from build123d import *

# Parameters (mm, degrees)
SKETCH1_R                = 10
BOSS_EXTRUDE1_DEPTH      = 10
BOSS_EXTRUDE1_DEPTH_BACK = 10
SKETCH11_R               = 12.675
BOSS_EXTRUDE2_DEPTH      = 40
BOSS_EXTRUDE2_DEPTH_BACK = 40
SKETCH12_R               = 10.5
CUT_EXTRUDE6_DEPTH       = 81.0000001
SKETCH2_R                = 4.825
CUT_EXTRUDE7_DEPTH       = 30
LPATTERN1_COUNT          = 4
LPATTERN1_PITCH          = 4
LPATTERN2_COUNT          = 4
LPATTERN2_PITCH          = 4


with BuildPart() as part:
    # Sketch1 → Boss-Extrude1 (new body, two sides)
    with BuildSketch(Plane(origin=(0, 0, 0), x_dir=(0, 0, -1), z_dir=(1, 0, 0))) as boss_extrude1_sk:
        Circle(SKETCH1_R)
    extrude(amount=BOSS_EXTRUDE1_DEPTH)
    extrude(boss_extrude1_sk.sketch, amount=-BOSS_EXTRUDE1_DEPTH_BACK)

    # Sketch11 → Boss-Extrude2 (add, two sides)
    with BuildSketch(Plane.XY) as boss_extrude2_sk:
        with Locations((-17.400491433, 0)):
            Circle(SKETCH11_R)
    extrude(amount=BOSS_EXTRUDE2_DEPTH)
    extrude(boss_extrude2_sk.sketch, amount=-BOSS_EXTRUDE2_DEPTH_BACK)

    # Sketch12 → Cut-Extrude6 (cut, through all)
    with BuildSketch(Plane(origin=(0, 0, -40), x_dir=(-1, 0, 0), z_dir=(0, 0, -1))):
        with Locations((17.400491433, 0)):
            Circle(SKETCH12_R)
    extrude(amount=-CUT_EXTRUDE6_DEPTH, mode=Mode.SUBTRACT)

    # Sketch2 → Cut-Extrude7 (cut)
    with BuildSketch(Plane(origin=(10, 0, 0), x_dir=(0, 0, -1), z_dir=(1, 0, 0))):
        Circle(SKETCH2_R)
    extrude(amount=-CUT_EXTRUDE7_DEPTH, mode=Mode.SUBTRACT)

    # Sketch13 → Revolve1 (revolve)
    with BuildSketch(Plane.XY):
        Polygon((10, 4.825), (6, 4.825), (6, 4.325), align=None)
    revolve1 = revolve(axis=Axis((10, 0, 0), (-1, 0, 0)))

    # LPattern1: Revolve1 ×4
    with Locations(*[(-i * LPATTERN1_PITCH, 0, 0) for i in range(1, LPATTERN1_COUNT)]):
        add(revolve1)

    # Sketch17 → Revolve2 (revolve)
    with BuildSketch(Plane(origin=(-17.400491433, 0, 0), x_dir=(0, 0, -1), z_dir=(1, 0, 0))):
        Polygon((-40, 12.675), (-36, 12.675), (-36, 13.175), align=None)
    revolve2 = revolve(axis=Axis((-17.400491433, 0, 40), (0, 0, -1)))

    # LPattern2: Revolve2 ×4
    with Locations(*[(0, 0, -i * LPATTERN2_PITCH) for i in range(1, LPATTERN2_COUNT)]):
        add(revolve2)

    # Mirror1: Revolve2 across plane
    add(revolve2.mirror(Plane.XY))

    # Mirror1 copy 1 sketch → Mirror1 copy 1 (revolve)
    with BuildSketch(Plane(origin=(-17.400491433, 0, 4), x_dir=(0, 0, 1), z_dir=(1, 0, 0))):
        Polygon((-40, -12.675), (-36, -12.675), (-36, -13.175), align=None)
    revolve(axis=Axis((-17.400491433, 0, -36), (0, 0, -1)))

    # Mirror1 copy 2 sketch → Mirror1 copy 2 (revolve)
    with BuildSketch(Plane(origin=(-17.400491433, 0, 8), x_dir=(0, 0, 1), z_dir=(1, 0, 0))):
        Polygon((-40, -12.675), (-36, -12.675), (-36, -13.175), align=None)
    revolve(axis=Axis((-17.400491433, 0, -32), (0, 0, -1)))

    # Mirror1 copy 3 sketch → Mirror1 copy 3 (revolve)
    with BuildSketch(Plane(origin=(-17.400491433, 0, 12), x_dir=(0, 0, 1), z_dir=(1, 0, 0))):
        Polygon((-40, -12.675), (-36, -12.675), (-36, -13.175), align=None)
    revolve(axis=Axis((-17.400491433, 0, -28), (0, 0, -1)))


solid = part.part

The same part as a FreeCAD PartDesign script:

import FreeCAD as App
import Part
import Sketcher

V = App.Vector
Q = App.Units.Quantity

doc = App.newDocument("Part")
body = doc.addObject("PartDesign::Body", "Body")

# Sketch on YZ plane
sketch1 = doc.addObject("Sketcher::SketchObject", "Sketch")
body.addObject(sketch1)
sketch1.AttachmentSupport = (doc.YZ_Plane, [""])
sketch1.MapMode = "FlatFace"
sketch1.addGeometry(Part.Circle(V(0, 0, 0), V(0, 0, 1), 10), False)
sketch1.addConstraint(Sketcher.Constraint("Coincident", 0, 3, -1, 1))
sketch1.addConstraint(Sketcher.Constraint("Diameter", 0, Q("20 mm")))
pad1 = doc.addObject("PartDesign::Pad", "Pad")
body.addObject(pad1)
pad1.Profile = sketch1
pad1.Type = "TwoLengths"
pad1.Length = 10
pad1.Length2 = 10

# Sketch on XY plane
sketch2 = doc.addObject("Sketcher::SketchObject", "Sketch001")
body.addObject(sketch2)
sketch2.AttachmentSupport = (doc.XY_Plane, [""])
sketch2.MapMode = "FlatFace"
sketch2.addGeometry(Part.Circle(V(-17, 0, 0), V(0, 0, 1), 13), False)
sketch2.addConstraint(Sketcher.Constraint("PointOnObject", 0, 3, -1))
sketch2.addConstraint(Sketcher.Constraint("Diameter", 0, Q("25.35 mm")))
sketch2.addConstraint(Sketcher.Constraint("DistanceX", 0, 3, -1, 1, Q("17.400491 mm")))
pad2 = doc.addObject("PartDesign::Pad", "Pad001")
body.addObject(pad2)
pad2.Profile = sketch2
pad2.Type = "TwoLengths"
pad2.Length = 40
pad2.Length2 = 40

# Sketch on XY plane
sketch3 = doc.addObject("Sketcher::SketchObject", "Sketch002")
body.addObject(sketch3)
sketch3.AttachmentSupport = (doc.XY_Plane, [""])
sketch3.MapMode = "FlatFace"
sketch3.AttachmentOffset = App.Placement(V(0, 0, -40), App.Rotation())
sketch3.addGeometry(Part.Circle(V(-17, 0, 0), V(0, 0, 1), 10), False)
sketch3.addConstraint(Sketcher.Constraint("PointOnObject", 0, 3, -1))
sketch3.addConstraint(Sketcher.Constraint("Diameter", 0, Q("21 mm")))
sketch3.addConstraint(Sketcher.Constraint("DistanceX", 0, 3, -1, 1, Q("17.400491 mm")))
pocket1 = doc.addObject("PartDesign::Pocket", "Pocket")
body.addObject(pocket1)
pocket1.Profile = sketch3
pocket1.Type = "ThroughAll"
pocket1.Reversed = True

# Sketch on YZ plane
sketch4 = doc.addObject("Sketcher::SketchObject", "Sketch003")
body.addObject(sketch4)
sketch4.AttachmentSupport = (doc.YZ_Plane, [""])
sketch4.MapMode = "FlatFace"
sketch4.AttachmentOffset = App.Placement(V(0, 0, 10), App.Rotation())
sketch4.addGeometry(Part.Circle(V(0, 0, 0), V(0, 0, 1), 4.8), False)
sketch4.addConstraint(Sketcher.Constraint("Coincident", 0, 3, -1, 1))
sketch4.addConstraint(Sketcher.Constraint("Diameter", 0, Q("9.65 mm")))
pocket2 = doc.addObject("PartDesign::Pocket", "Pocket001")
body.addObject(pocket2)
pocket2.Profile = sketch4
pocket2.Length = 30

# Sketch on XY plane
sketch5 = doc.addObject("Sketcher::SketchObject", "Sketch004")
body.addObject(sketch5)
sketch5.AttachmentSupport = (doc.XY_Plane, [""])
sketch5.MapMode = "FlatFace"
sketch5.addGeometry(Part.LineSegment(V(10, 4.8, 0), V(6, 4.8, 0)), False)
sketch5.addGeometry(Part.LineSegment(V(6, 4.8, 0), V(6, 4.3, 0)), False)
sketch5.addGeometry(Part.LineSegment(V(6, 4.3, 0), V(10, 4.8, 0)), False)
sketch5.addConstraint(Sketcher.Constraint("Coincident", 0, 2, 1, 1))
sketch5.addConstraint(Sketcher.Constraint("Coincident", 1, 2, 2, 1))
sketch5.addConstraint(Sketcher.Constraint("Coincident", 2, 2, 0, 1))
sketch5.addConstraint(Sketcher.Constraint("Horizontal", 0))
sketch5.addConstraint(Sketcher.Constraint("Vertical", 1))
sketch5.addConstraint(Sketcher.Constraint("DistanceX", 0, 2, 0, 1, Q("4 mm")))
sketch5.addConstraint(Sketcher.Constraint("DistanceY", 1, 2, 1, 1, Q("0.5 mm")))
sketch5.addConstraint(Sketcher.Constraint("DistanceX", -1, 1, 0, 2, Q("6 mm")))
sketch5.addConstraint(Sketcher.Constraint("DistanceY", -1, 1, 0, 2, Q("4.825 mm")))
revolution = doc.addObject("PartDesign::Revolution", "Revolution")
body.addObject(revolution)
revolution.Profile = sketch5
revolution.ReferenceAxis = (sketch5, ["H_Axis"])
revolution.Angle = 360
doc.recompute()

linearpattern = doc.addObject("PartDesign::LinearPattern", "LinearPattern")
body.addObject(linearpattern)
linearpattern.Originals = [revolution]
linearpattern.Direction = (doc.X_Axis, [""])
linearpattern.Mode = "offset"
linearpattern.Offset = 4
linearpattern.Occurrences = 4
linearpattern.Reversed = True
body.Tip = linearpattern

# Sketch on YZ plane
sketch6 = doc.addObject("Sketcher::SketchObject", "Sketch005")
body.addObject(sketch6)
sketch6.AttachmentSupport = (doc.YZ_Plane, [""])
sketch6.MapMode = "FlatFace"
sketch6.AttachmentOffset = App.Placement(V(0, 0, -17.400491), App.Rotation())
sketch6.addGeometry(Part.LineSegment(V(12.7, 40, 0), V(12.7, 36, 0)), False)
sketch6.addGeometry(Part.LineSegment(V(12.7, 36, 0), V(13.2, 36, 0)), False)
sketch6.addGeometry(Part.LineSegment(V(13.2, 36, 0), V(12.7, 40, 0)), False)
sketch6.addConstraint(Sketcher.Constraint("Coincident", 0, 2, 1, 1))
sketch6.addConstraint(Sketcher.Constraint("Coincident", 1, 2, 2, 1))
sketch6.addConstraint(Sketcher.Constraint("Coincident", 2, 2, 0, 1))
sketch6.addConstraint(Sketcher.Constraint("Vertical", 0))
sketch6.addConstraint(Sketcher.Constraint("Horizontal", 1))
sketch6.addConstraint(Sketcher.Constraint("DistanceY", 0, 2, 0, 1, Q("4 mm")))
sketch6.addConstraint(Sketcher.Constraint("DistanceX", 1, 1, 1, 2, Q("0.5 mm")))
sketch6.addConstraint(Sketcher.Constraint("DistanceY", -1, 1, 0, 2, Q("36 mm")))
sketch6.addConstraint(Sketcher.Constraint("DistanceX", -1, 1, 0, 2, Q("12.675 mm")))
revolution2 = doc.addObject("PartDesign::Revolution", "Revolution001")
body.addObject(revolution2)
revolution2.Profile = sketch6
revolution2.ReferenceAxis = (sketch6, ["V_Axis"])
revolution2.Angle = 360
doc.recompute()

linearpattern2 = doc.addObject("PartDesign::LinearPattern", "LinearPattern001")
body.addObject(linearpattern2)
linearpattern2.Originals = [revolution2]
linearpattern2.Direction = (doc.Z_Axis, [""])
linearpattern2.Mode = "offset"
linearpattern2.Offset = 4
linearpattern2.Occurrences = 4
linearpattern2.Reversed = True
body.Tip = linearpattern2
doc.recompute()

mirrored = doc.addObject("PartDesign::Mirrored", "Mirrored")
body.addObject(mirrored)
mirrored.Originals = [revolution2]
mirrored.MirrorPlane = (doc.XY_Plane, [""])
body.Tip = mirrored

# Sketch on YZ plane
sketch7 = doc.addObject("Sketcher::SketchObject", "Sketch006")
body.addObject(sketch7)
sketch7.AttachmentSupport = (doc.YZ_Plane, [""])
sketch7.MapMode = "FlatFace"
sketch7.AttachmentOffset = App.Placement(V(0, 0, -17.400491), App.Rotation())
sketch7.addGeometry(Part.LineSegment(V(12.7, -32, 0), V(12.7, -36, 0)), False)
sketch7.addGeometry(Part.LineSegment(V(12.7, -36, 0), V(13.2, -32, 0)), False)
sketch7.addGeometry(Part.LineSegment(V(13.2, -32, 0), V(12.7, -32, 0)), False)
sketch7.addConstraint(Sketcher.Constraint("Coincident", 0, 2, 1, 1))
sketch7.addConstraint(Sketcher.Constraint("Coincident", 1, 2, 2, 1))
sketch7.addConstraint(Sketcher.Constraint("Coincident", 2, 2, 0, 1))
sketch7.addConstraint(Sketcher.Constraint("Vertical", 0))
sketch7.addConstraint(Sketcher.Constraint("Horizontal", 2))
sketch7.addConstraint(Sketcher.Constraint("DistanceY", 0, 2, 0, 1, Q("4 mm")))
sketch7.addConstraint(Sketcher.Constraint("DistanceX", 2, 2, 2, 1, Q("0.5 mm")))
sketch7.addConstraint(Sketcher.Constraint("DistanceY", 0, 2, -1, 1, Q("36 mm")))
sketch7.addConstraint(Sketcher.Constraint("DistanceX", -1, 1, 0, 2, Q("12.675 mm")))
revolution3 = doc.addObject("PartDesign::Revolution", "Revolution002")
body.addObject(revolution3)
revolution3.Profile = sketch7
revolution3.ReferenceAxis = (sketch7, ["V_Axis"])
revolution3.Angle = 360

# Sketch on YZ plane
sketch8 = doc.addObject("Sketcher::SketchObject", "Sketch007")
body.addObject(sketch8)
sketch8.AttachmentSupport = (doc.YZ_Plane, [""])
sketch8.MapMode = "FlatFace"
sketch8.AttachmentOffset = App.Placement(V(0, 0, -17.400491), App.Rotation())
sketch8.addGeometry(Part.LineSegment(V(12.7, -28, 0), V(12.7, -32, 0)), False)
sketch8.addGeometry(Part.LineSegment(V(12.7, -32, 0), V(13.2, -28, 0)), False)
sketch8.addGeometry(Part.LineSegment(V(13.2, -28, 0), V(12.7, -28, 0)), False)
sketch8.addConstraint(Sketcher.Constraint("Coincident", 0, 2, 1, 1))
sketch8.addConstraint(Sketcher.Constraint("Coincident", 1, 2, 2, 1))
sketch8.addConstraint(Sketcher.Constraint("Coincident", 2, 2, 0, 1))
sketch8.addConstraint(Sketcher.Constraint("Vertical", 0))
sketch8.addConstraint(Sketcher.Constraint("Horizontal", 2))
sketch8.addConstraint(Sketcher.Constraint("DistanceY", 0, 2, 0, 1, Q("4 mm")))
sketch8.addConstraint(Sketcher.Constraint("DistanceX", 2, 2, 2, 1, Q("0.5 mm")))
sketch8.addConstraint(Sketcher.Constraint("DistanceY", 0, 2, -1, 1, Q("32 mm")))
sketch8.addConstraint(Sketcher.Constraint("DistanceX", -1, 1, 0, 2, Q("12.675 mm")))
revolution4 = doc.addObject("PartDesign::Revolution", "Revolution003")
body.addObject(revolution4)
revolution4.Profile = sketch8
revolution4.ReferenceAxis = (sketch8, ["V_Axis"])
revolution4.Angle = 360

# Sketch on YZ plane
sketch9 = doc.addObject("Sketcher::SketchObject", "Sketch008")
body.addObject(sketch9)
sketch9.AttachmentSupport = (doc.YZ_Plane, [""])
sketch9.MapMode = "FlatFace"
sketch9.AttachmentOffset = App.Placement(V(0, 0, -17.400491), App.Rotation())
sketch9.addGeometry(Part.LineSegment(V(12.7, -24, 0), V(12.7, -28, 0)), False)
sketch9.addGeometry(Part.LineSegment(V(12.7, -28, 0), V(13.2, -24, 0)), False)
sketch9.addGeometry(Part.LineSegment(V(13.2, -24, 0), V(12.7, -24, 0)), False)
sketch9.addConstraint(Sketcher.Constraint("Coincident", 0, 2, 1, 1))
sketch9.addConstraint(Sketcher.Constraint("Coincident", 1, 2, 2, 1))
sketch9.addConstraint(Sketcher.Constraint("Coincident", 2, 2, 0, 1))
sketch9.addConstraint(Sketcher.Constraint("Vertical", 0))
sketch9.addConstraint(Sketcher.Constraint("Horizontal", 2))
sketch9.addConstraint(Sketcher.Constraint("DistanceY", 0, 2, 0, 1, Q("4 mm")))
sketch9.addConstraint(Sketcher.Constraint("DistanceX", 2, 2, 2, 1, Q("0.5 mm")))
sketch9.addConstraint(Sketcher.Constraint("DistanceY", 0, 2, -1, 1, Q("28 mm")))
sketch9.addConstraint(Sketcher.Constraint("DistanceX", -1, 1, 0, 2, Q("12.675 mm")))
revolution5 = doc.addObject("PartDesign::Revolution", "Revolution004")
body.addObject(revolution5)
revolution5.Profile = sketch9
revolution5.ReferenceAxis = (sketch9, ["V_Axis"])
revolution5.Angle = 360

doc.recompute()
